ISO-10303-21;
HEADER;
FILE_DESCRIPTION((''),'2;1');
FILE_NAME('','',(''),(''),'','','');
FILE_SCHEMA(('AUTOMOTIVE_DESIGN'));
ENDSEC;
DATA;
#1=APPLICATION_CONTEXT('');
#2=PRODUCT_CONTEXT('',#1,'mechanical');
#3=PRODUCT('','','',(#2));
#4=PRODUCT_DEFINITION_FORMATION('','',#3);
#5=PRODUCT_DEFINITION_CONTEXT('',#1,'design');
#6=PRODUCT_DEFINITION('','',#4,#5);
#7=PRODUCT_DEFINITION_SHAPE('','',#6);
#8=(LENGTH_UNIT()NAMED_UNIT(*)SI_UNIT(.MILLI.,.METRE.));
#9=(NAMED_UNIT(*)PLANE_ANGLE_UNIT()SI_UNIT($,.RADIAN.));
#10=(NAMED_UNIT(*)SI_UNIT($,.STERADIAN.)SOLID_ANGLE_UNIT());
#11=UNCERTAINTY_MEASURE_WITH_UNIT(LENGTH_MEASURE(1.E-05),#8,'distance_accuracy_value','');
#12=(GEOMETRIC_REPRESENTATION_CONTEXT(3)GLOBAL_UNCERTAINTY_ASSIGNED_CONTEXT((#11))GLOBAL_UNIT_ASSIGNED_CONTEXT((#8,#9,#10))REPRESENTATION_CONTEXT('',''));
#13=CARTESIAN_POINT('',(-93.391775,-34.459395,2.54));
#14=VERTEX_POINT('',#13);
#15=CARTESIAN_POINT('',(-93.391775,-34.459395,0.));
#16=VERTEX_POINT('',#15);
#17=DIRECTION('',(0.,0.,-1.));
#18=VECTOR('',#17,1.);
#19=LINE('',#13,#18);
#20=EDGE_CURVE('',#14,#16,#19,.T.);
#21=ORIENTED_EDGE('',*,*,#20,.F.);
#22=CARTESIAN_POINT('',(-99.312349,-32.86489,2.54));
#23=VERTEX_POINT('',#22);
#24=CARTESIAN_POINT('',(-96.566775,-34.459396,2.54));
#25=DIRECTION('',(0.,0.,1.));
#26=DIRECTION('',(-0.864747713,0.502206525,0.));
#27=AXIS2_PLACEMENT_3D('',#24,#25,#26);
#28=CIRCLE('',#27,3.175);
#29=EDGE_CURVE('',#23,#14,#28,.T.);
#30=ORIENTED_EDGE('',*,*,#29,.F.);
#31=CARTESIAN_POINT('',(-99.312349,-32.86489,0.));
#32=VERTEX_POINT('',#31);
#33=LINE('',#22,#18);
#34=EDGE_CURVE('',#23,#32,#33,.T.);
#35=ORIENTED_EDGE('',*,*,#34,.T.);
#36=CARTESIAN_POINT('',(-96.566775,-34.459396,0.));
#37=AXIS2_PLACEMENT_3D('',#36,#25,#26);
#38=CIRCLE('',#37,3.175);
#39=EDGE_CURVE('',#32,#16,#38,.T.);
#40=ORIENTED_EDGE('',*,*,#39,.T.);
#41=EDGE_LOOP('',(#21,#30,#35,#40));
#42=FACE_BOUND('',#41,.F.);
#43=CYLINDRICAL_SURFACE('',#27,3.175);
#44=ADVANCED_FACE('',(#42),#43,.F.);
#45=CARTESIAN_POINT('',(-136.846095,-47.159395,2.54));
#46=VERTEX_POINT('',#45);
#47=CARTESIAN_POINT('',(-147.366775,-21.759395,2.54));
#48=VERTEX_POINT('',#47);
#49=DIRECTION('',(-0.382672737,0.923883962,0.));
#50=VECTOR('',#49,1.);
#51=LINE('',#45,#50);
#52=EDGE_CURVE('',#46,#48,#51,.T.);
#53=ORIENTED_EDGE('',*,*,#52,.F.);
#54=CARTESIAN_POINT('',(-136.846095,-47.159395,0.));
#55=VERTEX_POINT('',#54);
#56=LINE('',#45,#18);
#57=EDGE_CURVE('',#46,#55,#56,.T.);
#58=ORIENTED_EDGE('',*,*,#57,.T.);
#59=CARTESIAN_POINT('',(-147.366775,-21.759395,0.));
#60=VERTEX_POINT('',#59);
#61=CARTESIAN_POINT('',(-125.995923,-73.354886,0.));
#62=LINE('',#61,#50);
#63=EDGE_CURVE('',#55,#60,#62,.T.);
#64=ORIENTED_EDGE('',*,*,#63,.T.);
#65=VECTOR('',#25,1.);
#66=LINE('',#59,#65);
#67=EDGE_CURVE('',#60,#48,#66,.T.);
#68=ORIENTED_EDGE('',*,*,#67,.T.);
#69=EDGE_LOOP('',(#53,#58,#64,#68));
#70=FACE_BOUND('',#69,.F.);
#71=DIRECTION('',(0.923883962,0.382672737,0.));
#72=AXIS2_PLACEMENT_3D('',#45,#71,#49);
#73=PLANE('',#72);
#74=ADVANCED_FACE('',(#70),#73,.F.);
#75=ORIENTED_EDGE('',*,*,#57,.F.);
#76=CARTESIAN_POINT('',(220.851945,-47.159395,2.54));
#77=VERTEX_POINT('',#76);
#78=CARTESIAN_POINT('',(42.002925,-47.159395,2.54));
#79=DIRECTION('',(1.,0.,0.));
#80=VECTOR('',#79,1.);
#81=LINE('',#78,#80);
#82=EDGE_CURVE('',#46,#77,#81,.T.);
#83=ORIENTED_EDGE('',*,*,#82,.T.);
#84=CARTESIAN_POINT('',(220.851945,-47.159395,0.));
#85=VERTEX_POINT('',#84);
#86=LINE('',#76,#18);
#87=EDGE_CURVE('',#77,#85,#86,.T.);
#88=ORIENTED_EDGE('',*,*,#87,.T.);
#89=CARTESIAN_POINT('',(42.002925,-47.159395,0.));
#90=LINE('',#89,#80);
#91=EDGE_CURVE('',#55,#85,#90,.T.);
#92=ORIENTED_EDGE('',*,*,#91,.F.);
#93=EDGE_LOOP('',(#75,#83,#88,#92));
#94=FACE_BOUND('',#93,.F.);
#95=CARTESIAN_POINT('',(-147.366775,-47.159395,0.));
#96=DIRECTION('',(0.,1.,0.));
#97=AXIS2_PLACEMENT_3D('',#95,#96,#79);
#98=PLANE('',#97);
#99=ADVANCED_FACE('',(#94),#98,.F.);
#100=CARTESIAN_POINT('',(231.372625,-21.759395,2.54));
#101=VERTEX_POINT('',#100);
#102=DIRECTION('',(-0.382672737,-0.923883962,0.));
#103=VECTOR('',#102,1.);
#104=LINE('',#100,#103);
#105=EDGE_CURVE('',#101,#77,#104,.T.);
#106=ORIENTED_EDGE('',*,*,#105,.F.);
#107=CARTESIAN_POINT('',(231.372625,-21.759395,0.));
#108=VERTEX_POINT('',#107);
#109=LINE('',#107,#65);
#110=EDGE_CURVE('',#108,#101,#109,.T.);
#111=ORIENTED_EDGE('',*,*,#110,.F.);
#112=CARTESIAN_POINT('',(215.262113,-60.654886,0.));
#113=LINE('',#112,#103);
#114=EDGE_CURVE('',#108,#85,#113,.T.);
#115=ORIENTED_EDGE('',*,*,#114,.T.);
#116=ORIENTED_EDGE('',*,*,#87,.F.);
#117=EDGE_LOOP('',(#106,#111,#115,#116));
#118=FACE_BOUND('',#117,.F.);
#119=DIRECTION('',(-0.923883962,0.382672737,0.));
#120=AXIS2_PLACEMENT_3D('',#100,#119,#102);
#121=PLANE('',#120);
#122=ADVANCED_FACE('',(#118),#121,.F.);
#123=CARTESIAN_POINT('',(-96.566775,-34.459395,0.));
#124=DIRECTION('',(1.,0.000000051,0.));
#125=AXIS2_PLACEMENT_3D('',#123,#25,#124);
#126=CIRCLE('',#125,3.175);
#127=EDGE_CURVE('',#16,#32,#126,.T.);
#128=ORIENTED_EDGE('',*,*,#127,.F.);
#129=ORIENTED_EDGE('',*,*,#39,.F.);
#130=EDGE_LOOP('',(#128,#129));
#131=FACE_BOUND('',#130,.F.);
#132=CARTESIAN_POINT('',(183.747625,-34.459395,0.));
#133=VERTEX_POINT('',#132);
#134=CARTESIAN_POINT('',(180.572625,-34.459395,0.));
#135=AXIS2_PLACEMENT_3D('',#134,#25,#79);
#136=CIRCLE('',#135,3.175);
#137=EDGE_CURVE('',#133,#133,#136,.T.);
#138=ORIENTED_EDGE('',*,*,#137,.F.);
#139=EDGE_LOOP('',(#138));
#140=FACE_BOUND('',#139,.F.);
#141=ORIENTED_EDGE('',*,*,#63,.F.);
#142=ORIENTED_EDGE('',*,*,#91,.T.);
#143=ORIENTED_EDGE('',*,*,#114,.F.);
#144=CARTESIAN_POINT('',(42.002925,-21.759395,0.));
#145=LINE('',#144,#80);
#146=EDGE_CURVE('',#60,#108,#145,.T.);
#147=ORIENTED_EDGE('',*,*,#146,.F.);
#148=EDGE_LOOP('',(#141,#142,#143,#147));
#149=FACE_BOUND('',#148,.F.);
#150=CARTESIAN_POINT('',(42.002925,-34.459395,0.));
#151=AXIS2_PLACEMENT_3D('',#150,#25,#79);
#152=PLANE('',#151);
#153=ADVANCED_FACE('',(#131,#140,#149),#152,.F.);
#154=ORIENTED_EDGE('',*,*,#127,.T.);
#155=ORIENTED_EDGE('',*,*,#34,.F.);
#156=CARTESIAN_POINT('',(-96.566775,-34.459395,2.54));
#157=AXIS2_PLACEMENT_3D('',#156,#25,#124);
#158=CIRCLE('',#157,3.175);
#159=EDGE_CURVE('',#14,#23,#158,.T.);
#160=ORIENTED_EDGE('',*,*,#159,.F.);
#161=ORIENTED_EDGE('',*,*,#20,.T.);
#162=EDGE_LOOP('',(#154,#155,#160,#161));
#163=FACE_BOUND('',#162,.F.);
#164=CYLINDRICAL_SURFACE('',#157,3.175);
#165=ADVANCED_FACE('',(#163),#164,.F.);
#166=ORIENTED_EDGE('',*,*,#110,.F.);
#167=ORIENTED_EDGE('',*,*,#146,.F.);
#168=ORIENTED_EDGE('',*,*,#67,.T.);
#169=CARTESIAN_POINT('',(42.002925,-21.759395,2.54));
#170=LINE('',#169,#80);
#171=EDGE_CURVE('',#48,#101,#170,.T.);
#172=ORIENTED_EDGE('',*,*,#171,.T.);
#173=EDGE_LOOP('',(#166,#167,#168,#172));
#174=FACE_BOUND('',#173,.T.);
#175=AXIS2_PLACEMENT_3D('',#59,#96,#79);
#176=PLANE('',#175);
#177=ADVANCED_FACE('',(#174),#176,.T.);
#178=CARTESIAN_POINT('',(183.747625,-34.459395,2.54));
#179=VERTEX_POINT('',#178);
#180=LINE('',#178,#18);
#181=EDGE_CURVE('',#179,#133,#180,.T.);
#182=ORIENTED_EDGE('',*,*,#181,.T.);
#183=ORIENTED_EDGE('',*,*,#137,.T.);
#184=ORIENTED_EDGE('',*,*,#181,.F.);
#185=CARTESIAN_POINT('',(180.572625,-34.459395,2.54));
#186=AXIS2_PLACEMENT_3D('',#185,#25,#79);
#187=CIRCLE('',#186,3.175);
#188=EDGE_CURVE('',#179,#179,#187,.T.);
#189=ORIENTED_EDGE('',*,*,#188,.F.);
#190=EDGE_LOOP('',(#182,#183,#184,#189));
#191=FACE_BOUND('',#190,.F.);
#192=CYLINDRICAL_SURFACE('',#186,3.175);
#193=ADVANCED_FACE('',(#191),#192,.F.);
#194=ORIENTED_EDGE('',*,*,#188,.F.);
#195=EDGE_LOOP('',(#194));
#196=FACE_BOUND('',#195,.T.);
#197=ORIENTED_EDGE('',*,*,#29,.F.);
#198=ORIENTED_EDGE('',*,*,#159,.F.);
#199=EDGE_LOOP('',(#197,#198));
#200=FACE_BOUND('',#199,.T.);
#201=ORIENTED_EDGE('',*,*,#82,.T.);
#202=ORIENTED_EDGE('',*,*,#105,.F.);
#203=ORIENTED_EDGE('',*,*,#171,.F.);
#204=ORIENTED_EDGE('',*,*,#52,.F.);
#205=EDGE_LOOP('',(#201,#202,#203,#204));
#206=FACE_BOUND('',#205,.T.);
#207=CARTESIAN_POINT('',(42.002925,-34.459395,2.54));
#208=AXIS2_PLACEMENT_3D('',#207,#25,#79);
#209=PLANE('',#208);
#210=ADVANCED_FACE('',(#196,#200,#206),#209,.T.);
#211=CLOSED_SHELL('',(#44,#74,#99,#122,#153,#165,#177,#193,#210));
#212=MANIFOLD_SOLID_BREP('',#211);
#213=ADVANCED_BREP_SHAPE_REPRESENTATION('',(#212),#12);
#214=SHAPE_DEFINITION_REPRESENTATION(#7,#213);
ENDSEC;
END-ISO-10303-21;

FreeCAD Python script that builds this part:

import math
import FreeCAD as App
import Part
import Sketcher

V = App.Vector
Q = App.Units.Quantity


def add_polygon(sketch, points):
    """Adds a closed chain of lines whose ends are joined by coincident constraints."""
    first, n = sketch.GeometryCount, len(points)
    for a, b in zip(points, points[1:] + points[:1]):
        sketch.addGeometry(Part.LineSegment(App.Vector(*a, 0), App.Vector(*b, 0)), False)
    for i in range(n):
        sketch.addConstraint(Sketcher.Constraint("Coincident", first + i, 2, first + (i + 1) % n, 1))

doc = App.newDocument("Part")
body = doc.addObject("PartDesign::Body", "Body")

sketch1 = body.newObject("Sketcher::SketchObject", "Sketch")
sketch1.AttachmentSupport = (doc.getObject("XY_Plane"), [""])
sketch1.MapMode = "FlatFace"
add_polygon(sketch1, [(-147.366775, -21.759395), (-147.366775, -47.159395), (231.372625, -47.159395), (231.372625, -21.759395)])
sketch1.addConstraint(Sketcher.Constraint("Vertical", 0))
sketch1.addConstraint(Sketcher.Constraint("Horizontal", 1))
sketch1.addConstraint(Sketcher.Constraint("Vertical", 2))
sketch1.addConstraint(Sketcher.Constraint("Horizontal", 3))
sketch1.addConstraint(Sketcher.Constraint("DistanceY", 0, 2, 0, 1, Q("1 in")))
sketch1.addConstraint(Sketcher.Constraint("DistanceX", 1, 1, 1, 2, Q("14.911 in")))
sketch1.addConstraint(Sketcher.Constraint("DistanceX", 0, 2, -1, 1, 147.366775))
sketch1.addConstraint(Sketcher.Constraint("DistanceY", 0, 2, -1, 1, 47.159395))
pad1 = body.newObject("PartDesign::Pad", "Pad")
pad1.Profile = sketch1
pad1.Length = Q("0.1 in")

sketch2 = body.newObject("Sketcher::SketchObject", "Sketch001")
sketch2.AttachmentSupport = (doc.getObject("XY_Plane"), [""])
sketch2.MapMode = "FlatFace"
sketch2.AttachmentOffset = App.Placement(V(0, 0, 0.1 * 25.4), App.Rotation())
add_polygon(sketch2, [(-136.846095, -47.159395), (-147.366775, -21.759395), (-147.366775, -47.159395)])
add_polygon(sketch2, [(231.372625, -47.159395), (231.372625, -21.759395), (220.851945, -47.159395)])
sketch2.addConstraint(Sketcher.Constraint("Vertical", 1))
sketch2.addConstraint(Sketcher.Constraint("Horizontal", 2))
sketch2.addConstraint(Sketcher.Constraint("Vertical", 3))
sketch2.addConstraint(Sketcher.Constraint("Horizontal", 5))
sketch2.addConstraint(Sketcher.Constraint("Horizontal", 0, 2, 3, 2))
sketch2.addConstraint(Sketcher.Constraint("Horizontal", 2, 2, 4, 2))
sketch2.addConstraint(Sketcher.Constraint("Equal", 2, 5))
sketch2.addConstraint(Sketcher.Constraint("DistanceY", 1, 2, 1, 1, Q("1 in")))
sketch2.addConstraint(Sketcher.Constraint("DistanceX", 2, 1, 2, 2, Q("0.4142 in")))
sketch2.addConstraint(Sketcher.Constraint("DistanceX", 0, 2, 3, 2, Q("14.911 in")))
sketch2.addConstraint(Sketcher.Constraint("DistanceX", 0, 2, -1, 1, 147.366775))
sketch2.addConstraint(Sketcher.Constraint("DistanceY", 0, 2, -1, 1, 21.759395))
pocket1 = body.newObject("PartDesign::Pocket", "Pocket")
pocket1.Profile = sketch2
pocket1.Type = "ThroughAll"

sketch3 = body.newObject("Sketcher::SketchObject", "Sketch002")
sketch3.AttachmentSupport = (doc.getObject("XY_Plane"), [""])
sketch3.MapMode = "FlatFace"
sketch3.AttachmentOffset = App.Placement(V(0, 0, 0.1 * 25.4), App.Rotation())
sketch3.addGeometry(Part.ArcOfCircle(Part.Circle(V(-96.566775, -34.459396, 0), V(0, 0, 1), 3.175), math.radians(149.85391), math.radians(360.000013)), False)
sketch3.addGeometry(Part.ArcOfCircle(Part.Circle(V(-96.566775, -34.459395, 0), V(0, 0, 1), 3.175), math.radians(0.000003), math.radians(149.85392)), False)
sketch3.addGeometry(Part.Circle(V(180.572625, -34.459395, 0), V(0, 0, 1), 3.175), False)
sketch3.addConstraint(Sketcher.Constraint("Tangent", 0, 1, 1, 2))
sketch3.addConstraint(Sketcher.Constraint("Coincident", 1, 1, 0, 2))
sketch3.addConstraint(Sketcher.Constraint("Equal", 1, 2))
sketch3.addConstraint(Sketcher.Constraint("Horizontal", 1, 3, 2, 3))
sketch3.addConstraint(Sketcher.Constraint("Horizontal", 2, 3, 1, 1))
sketch3.addConstraint(Sketcher.Constraint("Diameter", 2, Q("0.25 in")))
sketch3.addConstraint(Sketcher.Constraint("DistanceX", 1, 3, 2, 3, Q("10.911 in")))
sketch3.addConstraint(Sketcher.Constraint("DistanceX", 0, 1, -1, 1, 99.312349))
sketch3.addConstraint(Sketcher.Constraint("DistanceY", 0, 1, -1, 1, 32.86489))
sketch3.addConstraint(Sketcher.Constraint("DistanceX", 0, 3, -1, 1, 96.566775))
pocket2 = body.newObject("PartDesign::Pocket", "Pocket001")
pocket2.Profile = sketch3
pocket2.Type = "ThroughAll"

doc.recompute()
